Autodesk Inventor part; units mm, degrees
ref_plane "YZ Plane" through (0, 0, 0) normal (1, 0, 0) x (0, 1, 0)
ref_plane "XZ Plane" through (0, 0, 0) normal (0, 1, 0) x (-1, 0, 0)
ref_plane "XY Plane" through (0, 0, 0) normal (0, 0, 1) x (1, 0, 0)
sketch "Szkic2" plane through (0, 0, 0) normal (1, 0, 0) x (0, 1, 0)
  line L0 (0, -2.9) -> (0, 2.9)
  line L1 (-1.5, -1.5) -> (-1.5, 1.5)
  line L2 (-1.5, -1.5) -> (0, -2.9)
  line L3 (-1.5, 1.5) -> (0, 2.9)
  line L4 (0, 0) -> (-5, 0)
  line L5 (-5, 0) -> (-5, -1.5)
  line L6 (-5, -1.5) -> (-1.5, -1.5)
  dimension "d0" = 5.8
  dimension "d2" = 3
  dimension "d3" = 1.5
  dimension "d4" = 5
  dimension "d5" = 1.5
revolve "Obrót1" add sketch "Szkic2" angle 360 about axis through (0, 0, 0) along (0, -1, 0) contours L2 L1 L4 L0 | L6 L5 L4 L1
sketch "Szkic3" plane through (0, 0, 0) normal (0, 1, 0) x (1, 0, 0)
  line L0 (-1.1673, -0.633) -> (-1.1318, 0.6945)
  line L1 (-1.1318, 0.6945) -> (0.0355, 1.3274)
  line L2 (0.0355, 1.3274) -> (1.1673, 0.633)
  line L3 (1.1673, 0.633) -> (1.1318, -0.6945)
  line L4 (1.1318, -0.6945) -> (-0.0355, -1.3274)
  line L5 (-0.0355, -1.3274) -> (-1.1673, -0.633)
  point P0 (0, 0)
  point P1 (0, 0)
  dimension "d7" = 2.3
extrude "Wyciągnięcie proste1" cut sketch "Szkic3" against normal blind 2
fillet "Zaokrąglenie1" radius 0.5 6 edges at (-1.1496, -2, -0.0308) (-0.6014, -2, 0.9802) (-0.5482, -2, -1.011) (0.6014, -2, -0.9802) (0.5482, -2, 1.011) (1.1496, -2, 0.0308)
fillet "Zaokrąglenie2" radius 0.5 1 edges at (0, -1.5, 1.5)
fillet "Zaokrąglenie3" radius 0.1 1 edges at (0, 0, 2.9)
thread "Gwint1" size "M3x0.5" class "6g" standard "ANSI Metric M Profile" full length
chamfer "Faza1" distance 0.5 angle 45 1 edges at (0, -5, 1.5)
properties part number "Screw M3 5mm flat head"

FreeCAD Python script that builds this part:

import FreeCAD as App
import Part
import Sketcher
Q = App.Units.Quantity


def edges_at(feature, points):
    """Names of the edges that pass closest to the given points."""
    edges = feature.Shape.Edges
    near = lambda p: min(range(len(edges)), key=lambda i: edges[i].distToShape(Part.Vertex(*p))[0])
    return sorted({f"Edge{near(p) + 1}" for p in points})


def add_polygon(sketch, points):
    """Adds a closed chain of lines whose ends are joined by coincident constraints."""
    first, n = sketch.GeometryCount, len(points)
    for a, b in zip(points, points[1:] + points[:1]):
        sketch.addGeometry(Part.LineSegment(App.Vector(*a, 0), App.Vector(*b, 0)), False)
    for i in range(n):
        sketch.addConstraint(Sketcher.Constraint("Coincident", first + i, 2, first + (i + 1) % n, 1))

doc = App.newDocument("Part")
body = doc.addObject("PartDesign::Body", "Body")

# Sketch on YZ plane
sketch1 = body.newObject("Sketcher::SketchObject", "Sketch")
sketch1.AttachmentSupport = (doc.getObject("YZ_Plane"), [""])
sketch1.MapMode = "FlatFace"
add_polygon(sketch1, [(-1.5, -1.5), (0, -2.9), (0, 0), (-5, 0), (-5, -1.5)])  # lines 0-4
sketch1.addConstraint(Sketcher.Constraint("Vertical", 1))
sketch1.addConstraint(Sketcher.Constraint("Horizontal", 2))
sketch1.addConstraint(Sketcher.Constraint("Vertical", 3))
sketch1.addConstraint(Sketcher.Constraint("Horizontal", 4))
sketch1.addConstraint(Sketcher.Constraint("Coincident", 1, 2, -1, 1))
sketch1.addConstraint(Sketcher.Constraint("DistanceX", 2, 2, 2, 1, Q("5 mm")))
sketch1.addConstraint(Sketcher.Constraint("DistanceY", 3, 2, 3, 1, Q("1.5 mm")))
sketch1.addConstraint(Sketcher.Constraint("DistanceX", 4, 2, -1, 1, Q("1.5 mm")))
sketch1.addConstraint(Sketcher.Constraint("DistanceY", 1, 1, 1, 2, Q("2.9 mm")))
revolution = body.newObject("PartDesign::Revolution", "Revolution")
revolution.Profile = sketch1
revolution.ReferenceAxis = (sketch1, ["H_Axis"])
revolution.Angle = 360

# Sketch on XZ plane
sketch2 = body.newObject("Sketcher::SketchObject", "Sketch001")
sketch2.AttachmentSupport = (doc.getObject("XZ_Plane"), [""])
sketch2.MapMode = "FlatFace"
add_polygon(sketch2, [(-1.1, -0.7), (-1.2, 0.6), (0, 1.3), (1.1, 0.7), (1.2, -0.6), (0, -1.3)])  # lines 0-5
sketch2.addConstraint(Sketcher.Constraint("Symmetric", 0, 2, 3, 2, -1, 1))
sketch2.addConstraint(Sketcher.Constraint("Symmetric", 1, 2, 4, 2, -1, 1))
sketch2.addConstraint(Sketcher.Constraint("Symmetric", 2, 2, 5, 2, -1, 1))
sketch2.addConstraint(Sketcher.Constraint("Equal", 0, 1))
sketch2.addConstraint(Sketcher.Constraint("Equal", 1, 2))
sketch2.addConstraint(Sketcher.Constraint("Angle", 1, Q("31.5306 deg")))
sketch2.addConstraint(Sketcher.Constraint("Distance", 0, Q("1.328 mm")))
sketch2.addConstraint(Sketcher.Constraint("DistanceY", -1, 1, 0, 2, Q("0.633 mm")))
sketch2.addConstraint(Sketcher.Constraint("DistanceY", 2, 2, 1, 2, Q("0.633 mm")))
pocket1 = body.newObject("PartDesign::Pocket", "Pocket")
pocket1.Profile = sketch2
pocket1.Length = 2
pocket1.Reversed = True
doc.recompute()

fillet = body.newObject("PartDesign::Fillet", "Fillet")
fillet.Base = (pocket1, edges_at(pocket1, [
    (-1.15, -2, -0.031),
    (-0.601, -2, 0.98),
    (-0.548, -2, -1.011),
    (0.601, -2, -0.98),
    (0.548, -2, 1.011),
    (1.15, -2, 0.031),
]))
fillet.Radius = 0.5
doc.recompute()

fillet2 = body.newObject("PartDesign::Fillet", "Fillet001")
fillet2.Base = (fillet, edges_at(fillet, [(0, -1.5, 1.5)]))
fillet2.Radius = 0.5
doc.recompute()

fillet3 = body.newObject("PartDesign::Fillet", "Fillet002")
fillet3.Base = (fillet2, edges_at(fillet2, [(0, 0, 2.9)]))
fillet3.Radius = 0.1
doc.recompute()

chamfer = body.newObject("PartDesign::Chamfer", "Chamfer")
chamfer.Base = (fillet3, edges_at(fillet3, [(0, -5, 1.5)]))
chamfer.Size = 0.5

doc.recompute()
